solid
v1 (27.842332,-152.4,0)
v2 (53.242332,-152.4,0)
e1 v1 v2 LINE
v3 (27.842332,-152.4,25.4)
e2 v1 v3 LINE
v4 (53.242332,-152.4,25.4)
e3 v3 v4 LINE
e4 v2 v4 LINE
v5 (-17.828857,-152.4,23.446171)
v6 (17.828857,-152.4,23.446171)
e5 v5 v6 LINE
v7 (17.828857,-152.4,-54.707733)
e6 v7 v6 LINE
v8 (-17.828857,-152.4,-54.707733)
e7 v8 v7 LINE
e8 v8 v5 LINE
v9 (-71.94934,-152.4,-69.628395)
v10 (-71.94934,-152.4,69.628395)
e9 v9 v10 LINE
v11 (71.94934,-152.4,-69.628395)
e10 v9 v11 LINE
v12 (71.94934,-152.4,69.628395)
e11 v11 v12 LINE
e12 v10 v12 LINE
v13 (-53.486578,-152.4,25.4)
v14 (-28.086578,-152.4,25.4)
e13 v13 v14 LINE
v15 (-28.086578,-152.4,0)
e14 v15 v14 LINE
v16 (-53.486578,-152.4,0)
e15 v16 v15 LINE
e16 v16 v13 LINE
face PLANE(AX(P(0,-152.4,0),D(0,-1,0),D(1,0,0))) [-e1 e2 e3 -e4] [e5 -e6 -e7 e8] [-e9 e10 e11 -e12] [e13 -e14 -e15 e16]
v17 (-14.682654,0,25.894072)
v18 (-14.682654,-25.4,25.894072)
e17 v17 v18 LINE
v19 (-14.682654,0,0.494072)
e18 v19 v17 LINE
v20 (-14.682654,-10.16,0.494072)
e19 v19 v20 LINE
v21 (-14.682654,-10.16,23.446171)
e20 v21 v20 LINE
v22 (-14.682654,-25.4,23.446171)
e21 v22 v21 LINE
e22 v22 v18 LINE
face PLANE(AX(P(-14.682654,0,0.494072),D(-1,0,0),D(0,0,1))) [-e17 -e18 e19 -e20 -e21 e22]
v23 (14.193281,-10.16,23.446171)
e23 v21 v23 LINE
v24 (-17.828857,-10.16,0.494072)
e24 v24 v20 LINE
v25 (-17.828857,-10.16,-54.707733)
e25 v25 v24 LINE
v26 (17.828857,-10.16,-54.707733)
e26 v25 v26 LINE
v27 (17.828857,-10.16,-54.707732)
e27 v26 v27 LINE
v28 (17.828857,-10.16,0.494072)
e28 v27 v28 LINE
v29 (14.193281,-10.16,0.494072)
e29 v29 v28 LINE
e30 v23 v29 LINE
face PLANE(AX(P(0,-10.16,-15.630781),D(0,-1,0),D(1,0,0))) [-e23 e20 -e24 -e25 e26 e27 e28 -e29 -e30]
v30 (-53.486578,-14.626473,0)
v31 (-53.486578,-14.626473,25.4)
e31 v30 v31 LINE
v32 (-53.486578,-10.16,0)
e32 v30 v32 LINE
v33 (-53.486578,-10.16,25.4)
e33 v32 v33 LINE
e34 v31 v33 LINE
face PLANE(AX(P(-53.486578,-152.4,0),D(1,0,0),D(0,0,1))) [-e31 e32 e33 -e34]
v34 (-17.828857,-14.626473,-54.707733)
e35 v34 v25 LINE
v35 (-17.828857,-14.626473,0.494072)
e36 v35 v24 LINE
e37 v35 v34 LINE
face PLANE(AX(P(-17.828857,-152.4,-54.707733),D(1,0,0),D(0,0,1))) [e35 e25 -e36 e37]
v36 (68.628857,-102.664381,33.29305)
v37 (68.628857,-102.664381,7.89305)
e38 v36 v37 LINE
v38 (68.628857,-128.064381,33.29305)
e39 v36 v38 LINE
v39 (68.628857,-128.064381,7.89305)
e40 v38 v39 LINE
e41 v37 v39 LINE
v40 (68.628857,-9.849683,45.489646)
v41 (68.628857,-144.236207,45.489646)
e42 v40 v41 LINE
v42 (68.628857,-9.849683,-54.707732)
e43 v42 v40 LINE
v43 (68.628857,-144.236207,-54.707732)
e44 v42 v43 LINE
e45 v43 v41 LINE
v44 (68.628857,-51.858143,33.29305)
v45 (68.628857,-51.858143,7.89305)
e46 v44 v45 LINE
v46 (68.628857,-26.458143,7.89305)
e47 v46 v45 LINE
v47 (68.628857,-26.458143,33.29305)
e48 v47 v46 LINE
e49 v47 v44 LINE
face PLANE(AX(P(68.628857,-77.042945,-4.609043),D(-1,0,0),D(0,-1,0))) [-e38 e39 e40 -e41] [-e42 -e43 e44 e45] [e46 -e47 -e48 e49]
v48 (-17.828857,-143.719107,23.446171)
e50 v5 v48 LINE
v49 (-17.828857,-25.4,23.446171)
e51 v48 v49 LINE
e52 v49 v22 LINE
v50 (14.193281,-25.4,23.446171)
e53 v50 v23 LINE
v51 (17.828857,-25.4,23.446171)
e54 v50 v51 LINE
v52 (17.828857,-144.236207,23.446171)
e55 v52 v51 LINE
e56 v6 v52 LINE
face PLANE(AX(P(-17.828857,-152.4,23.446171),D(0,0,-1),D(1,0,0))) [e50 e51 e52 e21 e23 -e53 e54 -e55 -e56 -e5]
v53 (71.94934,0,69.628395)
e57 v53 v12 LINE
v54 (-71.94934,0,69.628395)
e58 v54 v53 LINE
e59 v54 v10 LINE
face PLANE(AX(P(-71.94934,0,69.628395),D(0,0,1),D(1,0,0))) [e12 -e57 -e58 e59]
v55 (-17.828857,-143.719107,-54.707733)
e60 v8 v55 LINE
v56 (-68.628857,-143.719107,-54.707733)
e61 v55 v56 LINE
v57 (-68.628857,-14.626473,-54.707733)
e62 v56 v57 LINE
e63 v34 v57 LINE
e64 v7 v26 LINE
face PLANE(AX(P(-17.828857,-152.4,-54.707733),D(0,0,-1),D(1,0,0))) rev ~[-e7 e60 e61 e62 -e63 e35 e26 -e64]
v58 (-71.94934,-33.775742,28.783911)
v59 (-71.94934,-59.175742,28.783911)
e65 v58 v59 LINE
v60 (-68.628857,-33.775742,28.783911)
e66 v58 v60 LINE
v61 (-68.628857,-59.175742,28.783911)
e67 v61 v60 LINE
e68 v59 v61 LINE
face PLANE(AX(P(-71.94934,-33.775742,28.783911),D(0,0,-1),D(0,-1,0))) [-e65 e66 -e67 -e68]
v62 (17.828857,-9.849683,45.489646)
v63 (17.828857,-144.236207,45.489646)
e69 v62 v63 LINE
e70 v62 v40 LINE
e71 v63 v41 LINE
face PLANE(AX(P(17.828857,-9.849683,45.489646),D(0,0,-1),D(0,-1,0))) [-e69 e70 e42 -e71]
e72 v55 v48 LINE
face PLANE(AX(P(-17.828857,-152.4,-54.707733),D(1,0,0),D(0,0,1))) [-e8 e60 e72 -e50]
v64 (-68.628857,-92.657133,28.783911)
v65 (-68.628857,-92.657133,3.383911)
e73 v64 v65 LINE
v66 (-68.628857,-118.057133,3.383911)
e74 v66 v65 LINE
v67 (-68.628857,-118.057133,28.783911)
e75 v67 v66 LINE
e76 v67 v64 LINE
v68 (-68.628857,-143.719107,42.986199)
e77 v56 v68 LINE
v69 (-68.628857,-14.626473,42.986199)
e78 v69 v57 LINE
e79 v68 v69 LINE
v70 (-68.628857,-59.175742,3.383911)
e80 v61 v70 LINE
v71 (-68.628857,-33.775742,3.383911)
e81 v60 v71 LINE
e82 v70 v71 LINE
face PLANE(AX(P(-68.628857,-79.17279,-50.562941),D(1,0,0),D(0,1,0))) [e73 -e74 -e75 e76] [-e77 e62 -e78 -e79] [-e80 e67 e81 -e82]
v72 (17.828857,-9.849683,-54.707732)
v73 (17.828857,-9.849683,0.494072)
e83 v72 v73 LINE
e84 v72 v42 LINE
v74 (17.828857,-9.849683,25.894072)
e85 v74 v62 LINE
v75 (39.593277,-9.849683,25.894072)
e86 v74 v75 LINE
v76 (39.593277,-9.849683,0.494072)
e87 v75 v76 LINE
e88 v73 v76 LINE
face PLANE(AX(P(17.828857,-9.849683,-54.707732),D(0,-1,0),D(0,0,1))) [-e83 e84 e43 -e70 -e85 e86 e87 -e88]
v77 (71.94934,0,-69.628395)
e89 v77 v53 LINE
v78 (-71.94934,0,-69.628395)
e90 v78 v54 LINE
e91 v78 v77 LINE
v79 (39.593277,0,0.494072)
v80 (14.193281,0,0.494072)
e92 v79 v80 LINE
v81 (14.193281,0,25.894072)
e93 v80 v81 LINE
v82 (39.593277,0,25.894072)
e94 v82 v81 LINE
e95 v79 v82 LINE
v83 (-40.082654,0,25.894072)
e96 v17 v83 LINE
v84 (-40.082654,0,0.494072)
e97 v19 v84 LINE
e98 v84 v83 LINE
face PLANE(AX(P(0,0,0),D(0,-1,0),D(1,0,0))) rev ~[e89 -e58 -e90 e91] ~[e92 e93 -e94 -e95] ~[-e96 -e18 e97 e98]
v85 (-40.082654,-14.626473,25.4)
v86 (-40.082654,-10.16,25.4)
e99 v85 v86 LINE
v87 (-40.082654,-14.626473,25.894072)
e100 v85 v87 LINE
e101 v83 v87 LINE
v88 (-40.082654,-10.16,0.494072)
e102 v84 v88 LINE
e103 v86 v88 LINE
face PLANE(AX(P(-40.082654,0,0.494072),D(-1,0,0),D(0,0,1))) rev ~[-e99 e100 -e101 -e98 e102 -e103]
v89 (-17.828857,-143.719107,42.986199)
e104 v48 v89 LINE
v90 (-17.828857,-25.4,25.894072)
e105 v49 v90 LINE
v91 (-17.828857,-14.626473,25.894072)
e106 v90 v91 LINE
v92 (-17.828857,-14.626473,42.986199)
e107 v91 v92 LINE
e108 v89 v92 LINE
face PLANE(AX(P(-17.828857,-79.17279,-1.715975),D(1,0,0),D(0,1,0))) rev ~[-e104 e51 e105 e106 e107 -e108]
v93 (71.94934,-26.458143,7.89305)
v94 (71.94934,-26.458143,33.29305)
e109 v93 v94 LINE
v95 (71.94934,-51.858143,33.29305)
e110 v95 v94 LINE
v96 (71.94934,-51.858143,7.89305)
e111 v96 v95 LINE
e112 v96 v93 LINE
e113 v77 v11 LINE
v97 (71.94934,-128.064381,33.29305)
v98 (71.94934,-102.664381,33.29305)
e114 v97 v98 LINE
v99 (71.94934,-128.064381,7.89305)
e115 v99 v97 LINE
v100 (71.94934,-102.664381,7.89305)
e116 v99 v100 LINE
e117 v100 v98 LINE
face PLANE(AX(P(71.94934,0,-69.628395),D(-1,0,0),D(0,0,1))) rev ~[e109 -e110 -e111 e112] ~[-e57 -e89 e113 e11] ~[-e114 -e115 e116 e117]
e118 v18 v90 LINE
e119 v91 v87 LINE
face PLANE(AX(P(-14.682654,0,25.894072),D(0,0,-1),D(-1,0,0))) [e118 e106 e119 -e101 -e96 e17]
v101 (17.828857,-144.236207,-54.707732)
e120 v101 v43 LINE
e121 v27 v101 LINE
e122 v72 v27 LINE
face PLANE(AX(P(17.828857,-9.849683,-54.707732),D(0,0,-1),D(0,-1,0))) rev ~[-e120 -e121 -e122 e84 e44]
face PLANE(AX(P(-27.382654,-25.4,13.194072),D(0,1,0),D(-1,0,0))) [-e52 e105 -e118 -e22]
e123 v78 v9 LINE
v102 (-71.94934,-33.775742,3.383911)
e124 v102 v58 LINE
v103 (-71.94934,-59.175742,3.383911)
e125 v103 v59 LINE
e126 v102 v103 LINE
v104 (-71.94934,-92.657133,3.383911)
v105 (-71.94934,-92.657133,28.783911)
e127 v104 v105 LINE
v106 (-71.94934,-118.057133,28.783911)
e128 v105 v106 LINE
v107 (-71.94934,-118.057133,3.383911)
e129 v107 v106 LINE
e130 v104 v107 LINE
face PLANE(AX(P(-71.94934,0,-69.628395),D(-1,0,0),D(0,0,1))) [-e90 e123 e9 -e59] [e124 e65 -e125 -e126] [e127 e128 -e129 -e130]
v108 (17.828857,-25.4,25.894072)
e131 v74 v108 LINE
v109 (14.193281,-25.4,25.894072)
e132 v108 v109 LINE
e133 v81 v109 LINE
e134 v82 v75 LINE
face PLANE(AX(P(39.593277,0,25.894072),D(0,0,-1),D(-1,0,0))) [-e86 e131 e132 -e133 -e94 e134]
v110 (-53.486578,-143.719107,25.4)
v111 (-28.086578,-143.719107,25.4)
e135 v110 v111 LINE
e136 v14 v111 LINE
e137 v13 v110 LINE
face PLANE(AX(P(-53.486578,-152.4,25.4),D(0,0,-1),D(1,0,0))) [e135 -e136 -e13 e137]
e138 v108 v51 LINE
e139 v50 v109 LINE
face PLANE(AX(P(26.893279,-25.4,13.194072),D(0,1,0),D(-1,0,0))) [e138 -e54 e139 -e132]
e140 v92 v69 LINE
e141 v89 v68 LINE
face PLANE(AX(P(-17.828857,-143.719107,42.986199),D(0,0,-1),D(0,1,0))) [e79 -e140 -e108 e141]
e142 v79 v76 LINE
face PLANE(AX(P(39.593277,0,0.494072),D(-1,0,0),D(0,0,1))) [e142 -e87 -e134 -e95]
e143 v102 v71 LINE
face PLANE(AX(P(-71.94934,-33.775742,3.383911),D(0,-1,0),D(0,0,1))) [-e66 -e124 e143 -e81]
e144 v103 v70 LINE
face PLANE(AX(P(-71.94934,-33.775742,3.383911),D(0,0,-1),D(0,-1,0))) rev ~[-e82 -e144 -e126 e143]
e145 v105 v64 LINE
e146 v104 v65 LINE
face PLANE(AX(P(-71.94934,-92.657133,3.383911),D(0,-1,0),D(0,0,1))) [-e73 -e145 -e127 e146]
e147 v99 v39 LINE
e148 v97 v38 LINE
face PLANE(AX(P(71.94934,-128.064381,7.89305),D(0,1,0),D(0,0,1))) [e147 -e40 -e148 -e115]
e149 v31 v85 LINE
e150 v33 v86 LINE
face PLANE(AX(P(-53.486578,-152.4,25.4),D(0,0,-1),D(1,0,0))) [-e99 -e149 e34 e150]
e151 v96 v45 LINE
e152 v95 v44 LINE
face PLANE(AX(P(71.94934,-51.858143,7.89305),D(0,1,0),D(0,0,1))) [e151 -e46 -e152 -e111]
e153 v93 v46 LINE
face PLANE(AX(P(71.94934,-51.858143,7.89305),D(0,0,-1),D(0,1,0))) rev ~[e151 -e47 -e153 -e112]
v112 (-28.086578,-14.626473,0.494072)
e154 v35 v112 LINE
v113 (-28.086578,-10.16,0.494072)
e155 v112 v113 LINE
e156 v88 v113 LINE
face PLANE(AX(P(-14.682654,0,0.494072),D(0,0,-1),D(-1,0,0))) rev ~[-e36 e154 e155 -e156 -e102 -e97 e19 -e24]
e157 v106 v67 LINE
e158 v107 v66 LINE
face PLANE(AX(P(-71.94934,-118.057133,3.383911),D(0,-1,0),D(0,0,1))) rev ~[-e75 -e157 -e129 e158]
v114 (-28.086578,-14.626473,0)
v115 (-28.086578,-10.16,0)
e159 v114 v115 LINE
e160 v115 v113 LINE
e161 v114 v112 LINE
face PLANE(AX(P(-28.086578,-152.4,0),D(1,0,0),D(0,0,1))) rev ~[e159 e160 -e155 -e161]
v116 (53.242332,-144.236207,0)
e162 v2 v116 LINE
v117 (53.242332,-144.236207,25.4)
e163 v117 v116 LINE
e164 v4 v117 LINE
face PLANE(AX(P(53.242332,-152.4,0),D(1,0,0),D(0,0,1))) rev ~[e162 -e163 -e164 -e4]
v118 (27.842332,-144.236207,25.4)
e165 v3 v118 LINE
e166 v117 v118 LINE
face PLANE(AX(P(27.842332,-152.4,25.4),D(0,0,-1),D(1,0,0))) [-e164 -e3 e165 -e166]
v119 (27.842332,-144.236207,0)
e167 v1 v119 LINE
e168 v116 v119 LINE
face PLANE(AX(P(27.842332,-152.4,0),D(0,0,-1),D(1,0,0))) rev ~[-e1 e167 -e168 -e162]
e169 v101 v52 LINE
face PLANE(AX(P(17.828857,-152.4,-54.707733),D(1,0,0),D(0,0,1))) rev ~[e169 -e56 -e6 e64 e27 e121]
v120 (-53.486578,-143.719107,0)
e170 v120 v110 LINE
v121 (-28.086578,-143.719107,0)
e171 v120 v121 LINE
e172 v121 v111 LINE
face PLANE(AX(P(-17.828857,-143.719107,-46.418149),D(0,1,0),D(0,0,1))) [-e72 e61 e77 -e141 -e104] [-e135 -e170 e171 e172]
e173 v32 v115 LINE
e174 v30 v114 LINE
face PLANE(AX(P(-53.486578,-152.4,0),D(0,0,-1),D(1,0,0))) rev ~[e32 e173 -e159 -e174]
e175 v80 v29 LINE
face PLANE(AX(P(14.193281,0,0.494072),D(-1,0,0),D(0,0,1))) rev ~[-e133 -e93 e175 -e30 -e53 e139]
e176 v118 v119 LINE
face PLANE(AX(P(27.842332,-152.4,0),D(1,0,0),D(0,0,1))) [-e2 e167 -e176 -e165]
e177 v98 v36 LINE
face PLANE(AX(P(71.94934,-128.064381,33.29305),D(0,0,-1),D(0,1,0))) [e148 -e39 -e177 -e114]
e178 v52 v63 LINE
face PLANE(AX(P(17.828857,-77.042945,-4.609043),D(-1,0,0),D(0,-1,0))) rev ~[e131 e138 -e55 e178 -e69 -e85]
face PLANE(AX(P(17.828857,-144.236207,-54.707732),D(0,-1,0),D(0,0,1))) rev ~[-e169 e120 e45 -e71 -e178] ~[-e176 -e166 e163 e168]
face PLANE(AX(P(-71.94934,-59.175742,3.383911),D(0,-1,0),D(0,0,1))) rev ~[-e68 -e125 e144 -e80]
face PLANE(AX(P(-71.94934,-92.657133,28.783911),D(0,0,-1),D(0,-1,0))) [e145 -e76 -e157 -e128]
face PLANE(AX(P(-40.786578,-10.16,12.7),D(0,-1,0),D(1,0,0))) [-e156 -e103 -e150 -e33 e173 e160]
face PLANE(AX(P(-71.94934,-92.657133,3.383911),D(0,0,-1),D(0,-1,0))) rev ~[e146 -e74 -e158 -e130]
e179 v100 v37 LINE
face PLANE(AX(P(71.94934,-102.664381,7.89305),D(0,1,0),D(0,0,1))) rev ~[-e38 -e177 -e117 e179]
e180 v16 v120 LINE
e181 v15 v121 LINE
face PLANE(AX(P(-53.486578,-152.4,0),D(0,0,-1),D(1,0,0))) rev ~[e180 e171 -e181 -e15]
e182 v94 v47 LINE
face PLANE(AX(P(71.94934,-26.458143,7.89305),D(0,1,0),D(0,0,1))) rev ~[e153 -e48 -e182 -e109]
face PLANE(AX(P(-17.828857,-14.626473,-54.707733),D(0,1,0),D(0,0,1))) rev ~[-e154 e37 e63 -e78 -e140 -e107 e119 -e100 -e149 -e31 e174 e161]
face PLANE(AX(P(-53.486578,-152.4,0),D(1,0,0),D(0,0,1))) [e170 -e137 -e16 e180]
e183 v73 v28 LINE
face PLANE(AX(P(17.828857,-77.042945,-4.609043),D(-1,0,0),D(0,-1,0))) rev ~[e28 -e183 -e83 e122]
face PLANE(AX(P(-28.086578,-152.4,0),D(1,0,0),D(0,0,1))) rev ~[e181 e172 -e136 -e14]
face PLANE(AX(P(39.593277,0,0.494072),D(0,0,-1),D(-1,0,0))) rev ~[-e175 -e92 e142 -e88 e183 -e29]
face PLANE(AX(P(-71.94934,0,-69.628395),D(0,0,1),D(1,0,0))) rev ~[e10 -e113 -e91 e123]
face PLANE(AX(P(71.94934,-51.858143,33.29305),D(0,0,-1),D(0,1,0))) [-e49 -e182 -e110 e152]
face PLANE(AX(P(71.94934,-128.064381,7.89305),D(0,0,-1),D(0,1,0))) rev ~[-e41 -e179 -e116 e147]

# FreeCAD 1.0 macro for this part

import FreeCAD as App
import Part
import Sketcher

V = App.Vector
Q = App.Units.Quantity


def add_polygon(sketch, points):
    """Adds a closed chain of lines whose ends are joined by coincident constraints."""
    first, n = sketch.GeometryCount, len(points)
    for a, b in zip(points, points[1:] + points[:1]):
        sketch.addGeometry(Part.LineSegment(App.Vector(*a, 0), App.Vector(*b, 0)), False)
    for i in range(n):
        sketch.addConstraint(Sketcher.Constraint("Coincident", first + i, 2, first + (i + 1) % n, 1))

doc = App.newDocument("Part")
body = doc.addObject("PartDesign::Body", "Body")

sketch1 = body.newObject("Sketcher::SketchObject", "Sketch")
sketch1.AttachmentSupport = (doc.getObject("XZ_Plane"), [""])
sketch1.MapMode = "FlatFace"
add_polygon(sketch1, [(-72, 70), (-72, -70), (72, -70), (72, 70)])
sketch1.addConstraint([
    Sketcher.Constraint("Vertical", 0),
    Sketcher.Constraint("Horizontal", 1),
    Sketcher.Constraint("Vertical", 2),
    Sketcher.Constraint("Horizontal", 3),
    Sketcher.Constraint("Symmetric", 0, 2, 2, 2, -1, 1),
    Sketcher.Constraint("DistanceX", 1, 1, 1, 2, 143.89868),
    Sketcher.Constraint("DistanceY", 0, 2, 0, 1, 139.25679),
])
pad1 = body.newObject("PartDesign::Pad", "Pad")
pad1.Profile = sketch1
pad1.Length = Q("6 in")

sketch2 = body.newObject("Sketcher::SketchObject", "Sketch001")
sketch2.AttachmentSupport = (doc.getObject("XZ_Plane"), [""])
sketch2.MapMode = "FlatFace"
sketch2.AttachmentOffset = App.Placement(V(0, 0, 6 * 25.4), App.Rotation())
add_polygon(sketch2, [(-53, 25), (-53, 0), (-28, 0), (-28, 25)])
add_polygon(sketch2, [(28, 25), (28, 0), (53, 0), (53, 25)])
add_polygon(sketch2, [(-18, 23), (-18, -55), (18, -55), (18, 23)])
sketch2.addConstraint([
    Sketcher.Constraint("Vertical", 0),
    Sketcher.Constraint("Horizontal", 1),
    Sketcher.Constraint("Vertical", 2),
    Sketcher.Constraint("Horizontal", 3),
    Sketcher.Constraint("Vertical", 4),
    Sketcher.Constraint("Horizontal", 5),
    Sketcher.Constraint("Vertical", 6),
    Sketcher.Constraint("Horizontal", 7),
    Sketcher.Constraint("Vertical", 8),
    Sketcher.Constraint("Horizontal", 9),
    Sketcher.Constraint("Vertical", 10),
    Sketcher.Constraint("Horizontal", 11),
    Sketcher.Constraint("PointOnObject", 0, 2, -1),
    Sketcher.Constraint("PointOnObject", 4, 2, -1),
    Sketcher.Constraint("Horizontal", 3, 2, 6, 2),
    Sketcher.Constraint("Equal", 3, 5),
    Sketcher.Constraint("Equal", 7, 0),
    Sketcher.Constraint("DistanceX", 1, 1, 1, 2, Q("1 in")),
    Sketcher.Constraint("DistanceX", 9, 1, 9, 2, 35.657714),
    Sketcher.Constraint("DistanceY", 8, 2, 8, 1, 78.153904),
    Sketcher.Constraint("DistanceX", 0, 2, -1, 1, 53.486578),
    Sketcher.Constraint("DistanceX", -1, 1, 4, 2, 27.842332),
    Sketcher.Constraint("DistanceY", -1, 1, 10, 2, 23.446171),
    Sketcher.Constraint("DistanceX", 1, 2, 8, 2, 10.257721),
])
pocket1 = body.newObject("PartDesign::Pocket", "Pocket")
pocket1.Profile = sketch2
pocket1.Length = Q("5.6 in")

sketch3 = body.newObject("Sketcher::SketchObject", "Sketch002")
sketch3.AttachmentSupport = (doc.getObject("YZ_Plane"), [""])
sketch3.MapMode = "FlatFace"
sketch3.AttachmentOffset = App.Placement(V(0, 0, -17.828857), App.Rotation())
add_polygon(sketch3, [(-144, 43), (-144, -46), (-15, -46), (-15, 43)])
sketch3.addConstraint([
    Sketcher.Constraint("Vertical", 0),
    Sketcher.Constraint("Horizontal", 1),
    Sketcher.Constraint("Vertical", 2),
    Sketcher.Constraint("Horizontal", 3),
    Sketcher.Constraint("DistanceY", 0, 2, 0, 1, 89.404348),
    Sketcher.Constraint("DistanceY", -1, 1, 2, 2, 42.986199),
    Sketcher.Constraint("DistanceX", 1, 1, 1, 2, 129.092633),
    Sketcher.Constraint("DistanceX", 0, 2, -1, 1, 143.719107),
])
pocket2 = body.newObject("PartDesign::Pocket", "Pocket001")
pocket2.Profile = sketch3
pocket2.Length = Q("2 in")

sketch4 = body.newObject("Sketcher::SketchObject", "Sketch003")
sketch4.AttachmentSupport = (doc.getObject("YZ_Plane"), [""])
sketch4.MapMode = "FlatFace"
sketch4.AttachmentOffset = App.Placement(V(0, 0, 17.828857), App.Rotation())
add_polygon(sketch4, [(-10, 45), (-10, -55), (-144, -55), (-144, 45)])
sketch4.addConstraint([
    Sketcher.Constraint("Vertical", 0),
    Sketcher.Constraint("Horizontal", 1),
    Sketcher.Constraint("Vertical", 2),
    Sketcher.Constraint("Horizontal", 3),
    Sketcher.Constraint("DistanceY", 0, 2, 0, 1, 100.197379),
    Sketcher.Constraint("DistanceX", 1, 2, 1, 1, 134.386524),
    Sketcher.Constraint("DistanceX", 0, 2, -1, 1, 9.849683),
    Sketcher.Constraint("DistanceY", 0, 2, -1, 1, 54.707732),
])
pocket3 = body.newObject("PartDesign::Pocket", "Pocket002")
pocket3.Profile = sketch4
pocket3.Length = Q("2 in")
pocket3.Reversed = True

sketch5 = body.newObject("Sketcher::SketchObject", "Sketch004")
sketch5.AttachmentSupport = (doc.getObject("YZ_Plane"), [""])
sketch5.MapMode = "FlatFace"
sketch5.AttachmentOffset = App.Placement(V(0, 0, -17.828857), App.Rotation())
add_polygon(sketch5, [(-144, -46), (-144, -55), (-15, -55), (-15, -46)])
sketch5.addConstraint([
    Sketcher.Constraint("Vertical", 0),
    Sketcher.Constraint("Horizontal", 1),
    Sketcher.Constraint("Vertical", 2),
    Sketcher.Constraint("Horizontal", 3),
    Sketcher.Constraint("DistanceX", 1, 1, 1, 2, 129.092633),
    Sketcher.Constraint("DistanceY", 0, 2, 0, 1, 8.289584),
    Sketcher.Constraint("DistanceY", 2, 2, -1, 1, 46.418149),
    Sketcher.Constraint("DistanceX", 0, 2, -1, 1, 143.719107),
])
pocket4 = body.newObject("PartDesign::Pocket", "Pocket003")
pocket4.Profile = sketch5
pocket4.Length = Q("2 in")

sketch6 = body.newObject("Sketcher::SketchObject", "Sketch005")
sketch6.AttachmentSupport = (doc.getObject("YZ_Plane"), [""])
sketch6.MapMode = "FlatFace"
sketch6.AttachmentOffset = App.Placement(V(0, 0, 71.94934), App.Rotation())
add_polygon(sketch6, [(-128, 33), (-128, 8), (-103, 8), (-103, 33)])
add_polygon(sketch6, [(-52, 33), (-52, 8), (-26, 8), (-26, 33)])
sketch6.addConstraint([
    Sketcher.Constraint("Vertical", 0),
    Sketcher.Constraint("Horizontal", 1),
    Sketcher.Constraint("Vertical", 2),
    Sketcher.Constraint("Horizontal", 3),
    Sketcher.Constraint("Vertical", 4),
    Sketcher.Constraint("Horizontal", 5),
    Sketcher.Constraint("Vertical", 6),
    Sketcher.Constraint("Horizontal", 7),
    Sketcher.Constraint("Horizontal", 1, 2, 4, 2),
    Sketcher.Constraint("Horizontal", 3, 2, 6, 2),
    Sketcher.Constraint("Equal", 3, 5),
    Sketcher.Constraint("Equal", 7, 0),
    Sketcher.Constraint("DistanceX", 1, 1, 1, 2, Q("1 in")),
    Sketcher.Constraint("DistanceX", 0, 2, -1, 1, 128.064381),
    Sketcher.Constraint("DistanceY", -1, 1, 0, 2, 7.89305),
    Sketcher.Constraint("DistanceX", 1, 2, 4, 2, 50.806238),
])
pocket5 = body.newObject("PartDesign::Pocket", "Pocket004")
pocket5.Profile = sketch6
pocket5.Length = Q("1 in")

sketch7 = body.newObject("Sketcher::SketchObject", "Sketch006")
sketch7.AttachmentSupport = (doc.getObject("YZ_Plane"), [""])
sketch7.MapMode = "FlatFace"
sketch7.AttachmentOffset = App.Placement(V(0, 0, -71.94934), App.Rotation())
add_polygon(sketch7, [(-34, 29), (-34, 3), (-59, 3), (-59, 29)])
add_polygon(sketch7, [(-93, 29), (-93, 3), (-118, 3), (-118, 29)])
sketch7.addConstraint([
    Sketcher.Constraint("Vertical", 0),
    Sketcher.Constraint("Horizontal", 1),
    Sketcher.Constraint("Vertical", 2),
    Sketcher.Constraint("Horizontal", 3),
    Sketcher.Constraint("Vertical", 4),
    Sketcher.Constraint("Horizontal", 5),
    Sketcher.Constraint("Vertical", 6),
    Sketcher.Constraint("Horizontal", 7),
    Sketcher.Constraint("Horizontal", 1, 2, 4, 2),
    Sketcher.Constraint("Horizontal", 3, 2, 6, 2),
    Sketcher.Constraint("Equal", 3, 5),
    Sketcher.Constraint("Equal", 7, 0),
    Sketcher.Constraint("DistanceX", 1, 2, 1, 1, Q("1 in")),
    Sketcher.Constraint("DistanceY", -1, 1, 0, 2, 3.383911),
    Sketcher.Constraint("DistanceX", 4, 2, 1, 2, 33.481391),
    Sketcher.Constraint("DistanceX", 0, 2, -1, 1, 33.775742),
])
pocket6 = body.newObject("PartDesign::Pocket", "Pocket005")
pocket6.Profile = sketch7
pocket6.Length = Q("2 in")
pocket6.Reversed = True

sketch8 = body.newObject("Sketcher::SketchObject", "Sketch007")
sketch8.AttachmentSupport = (doc.getObject("XZ_Plane"), [""])
sketch8.MapMode = "FlatFace"
add_polygon(sketch8, [(40, 26), (40, 0), (14, 0), (14, 26)])
add_polygon(sketch8, [(-15, 26), (-15, 0), (-40, 0), (-40, 26)])
sketch8.addConstraint([
    Sketcher.Constraint("Vertical", 0),
    Sketcher.Constraint("Horizontal", 1),
    Sketcher.Constraint("Vertical", 2),
    Sketcher.Constraint("Horizontal", 3),
    Sketcher.Constraint("Vertical", 4),
    Sketcher.Constraint("Horizontal", 5),
    Sketcher.Constraint("Vertical", 6),
    Sketcher.Constraint("Horizontal", 7),
    Sketcher.Constraint("Horizontal", 1, 2, 4, 2),
    Sketcher.Constraint("Horizontal", 3, 2, 6, 2),
    Sketcher.Constraint("Equal", 7, 0),
    Sketcher.Constraint("DistanceX", 1, 2, 1, 1, Q("0.9999999 in")),
    Sketcher.Constraint("DistanceX", 5, 2, 5, 1, Q("1 in")),
    Sketcher.Constraint("DistanceX", -1, 1, 1, 2, 14.193281),
    Sketcher.Constraint("DistanceX", 4, 2, 0, 2, 54.275931),
    Sketcher.Constraint("DistanceY", -1, 1, 0, 2, 0.494072),
])
pocket7 = body.newObject("PartDesign::Pocket", "Pocket006")
pocket7.Profile = sketch8
pocket7.Length = Q("1 in")
pocket7.Reversed = True

doc.recompute()
